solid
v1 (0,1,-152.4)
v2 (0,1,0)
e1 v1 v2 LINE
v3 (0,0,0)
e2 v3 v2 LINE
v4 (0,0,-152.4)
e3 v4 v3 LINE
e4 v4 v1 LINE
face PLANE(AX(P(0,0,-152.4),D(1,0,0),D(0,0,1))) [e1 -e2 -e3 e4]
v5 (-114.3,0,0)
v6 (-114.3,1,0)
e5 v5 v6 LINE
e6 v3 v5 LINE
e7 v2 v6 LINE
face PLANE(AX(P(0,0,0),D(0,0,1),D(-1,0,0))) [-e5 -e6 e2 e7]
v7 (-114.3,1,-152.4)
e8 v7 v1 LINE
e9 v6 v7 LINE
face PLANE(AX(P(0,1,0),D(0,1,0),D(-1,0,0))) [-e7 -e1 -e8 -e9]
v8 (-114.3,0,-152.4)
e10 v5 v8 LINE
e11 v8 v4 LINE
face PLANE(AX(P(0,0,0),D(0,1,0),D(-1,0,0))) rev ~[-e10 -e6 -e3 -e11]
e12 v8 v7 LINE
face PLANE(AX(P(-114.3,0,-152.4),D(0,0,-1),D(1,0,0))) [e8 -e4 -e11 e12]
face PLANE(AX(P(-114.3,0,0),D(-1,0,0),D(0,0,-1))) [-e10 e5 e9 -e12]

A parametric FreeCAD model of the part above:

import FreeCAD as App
import Part
import Sketcher
from FreeCAD import Vector
Q = App.Units.Quantity


def add_polygon(sketch, points):
    """Adds a closed chain of lines whose ends are joined by coincident constraints."""
    first, n = sketch.GeometryCount, len(points)
    for a, b in zip(points, points[1:] + points[:1]):
        sketch.addGeometry(Part.LineSegment(App.Vector(*a, 0), App.Vector(*b, 0)), False)
    for i in range(n):
        sketch.addConstraint(Sketcher.Constraint("Coincident", first + i, 2, first + (i + 1) % n, 1))

doc = App.newDocument("Part")
body = doc.addObject("PartDesign::Body", "Body")

# Sketch on XZ plane
sketch1 = body.newObject("Sketcher::SketchObject", "Sketch")
sketch1.AttachmentSupport = (doc.getObject("XZ_Plane"), [""])
sketch1.MapMode = "FlatFace"
add_polygon(sketch1, [(-114, 0), (0, 0), (0, -152), (-114, -152)])  # lines 0-3
sketch1.addConstraint([
    Sketcher.Constraint("Horizontal", 0),
    Sketcher.Constraint("Vertical", 1),
    Sketcher.Constraint("Horizontal", 2),
    Sketcher.Constraint("Vertical", 3),
    Sketcher.Constraint("Coincident", 0, 2, -1, 1),
    Sketcher.Constraint("DistanceY", 1, 2, 1, 1, Q("6 in")),
    Sketcher.Constraint("DistanceX", 0, 1, 0, 2, Q("4.5 in")),
])
pad1 = body.newObject("PartDesign::Pad", "Pad")
pad1.Profile = sketch1
pad1.Length = 1
pad1.Reversed = True

doc.recompute()
